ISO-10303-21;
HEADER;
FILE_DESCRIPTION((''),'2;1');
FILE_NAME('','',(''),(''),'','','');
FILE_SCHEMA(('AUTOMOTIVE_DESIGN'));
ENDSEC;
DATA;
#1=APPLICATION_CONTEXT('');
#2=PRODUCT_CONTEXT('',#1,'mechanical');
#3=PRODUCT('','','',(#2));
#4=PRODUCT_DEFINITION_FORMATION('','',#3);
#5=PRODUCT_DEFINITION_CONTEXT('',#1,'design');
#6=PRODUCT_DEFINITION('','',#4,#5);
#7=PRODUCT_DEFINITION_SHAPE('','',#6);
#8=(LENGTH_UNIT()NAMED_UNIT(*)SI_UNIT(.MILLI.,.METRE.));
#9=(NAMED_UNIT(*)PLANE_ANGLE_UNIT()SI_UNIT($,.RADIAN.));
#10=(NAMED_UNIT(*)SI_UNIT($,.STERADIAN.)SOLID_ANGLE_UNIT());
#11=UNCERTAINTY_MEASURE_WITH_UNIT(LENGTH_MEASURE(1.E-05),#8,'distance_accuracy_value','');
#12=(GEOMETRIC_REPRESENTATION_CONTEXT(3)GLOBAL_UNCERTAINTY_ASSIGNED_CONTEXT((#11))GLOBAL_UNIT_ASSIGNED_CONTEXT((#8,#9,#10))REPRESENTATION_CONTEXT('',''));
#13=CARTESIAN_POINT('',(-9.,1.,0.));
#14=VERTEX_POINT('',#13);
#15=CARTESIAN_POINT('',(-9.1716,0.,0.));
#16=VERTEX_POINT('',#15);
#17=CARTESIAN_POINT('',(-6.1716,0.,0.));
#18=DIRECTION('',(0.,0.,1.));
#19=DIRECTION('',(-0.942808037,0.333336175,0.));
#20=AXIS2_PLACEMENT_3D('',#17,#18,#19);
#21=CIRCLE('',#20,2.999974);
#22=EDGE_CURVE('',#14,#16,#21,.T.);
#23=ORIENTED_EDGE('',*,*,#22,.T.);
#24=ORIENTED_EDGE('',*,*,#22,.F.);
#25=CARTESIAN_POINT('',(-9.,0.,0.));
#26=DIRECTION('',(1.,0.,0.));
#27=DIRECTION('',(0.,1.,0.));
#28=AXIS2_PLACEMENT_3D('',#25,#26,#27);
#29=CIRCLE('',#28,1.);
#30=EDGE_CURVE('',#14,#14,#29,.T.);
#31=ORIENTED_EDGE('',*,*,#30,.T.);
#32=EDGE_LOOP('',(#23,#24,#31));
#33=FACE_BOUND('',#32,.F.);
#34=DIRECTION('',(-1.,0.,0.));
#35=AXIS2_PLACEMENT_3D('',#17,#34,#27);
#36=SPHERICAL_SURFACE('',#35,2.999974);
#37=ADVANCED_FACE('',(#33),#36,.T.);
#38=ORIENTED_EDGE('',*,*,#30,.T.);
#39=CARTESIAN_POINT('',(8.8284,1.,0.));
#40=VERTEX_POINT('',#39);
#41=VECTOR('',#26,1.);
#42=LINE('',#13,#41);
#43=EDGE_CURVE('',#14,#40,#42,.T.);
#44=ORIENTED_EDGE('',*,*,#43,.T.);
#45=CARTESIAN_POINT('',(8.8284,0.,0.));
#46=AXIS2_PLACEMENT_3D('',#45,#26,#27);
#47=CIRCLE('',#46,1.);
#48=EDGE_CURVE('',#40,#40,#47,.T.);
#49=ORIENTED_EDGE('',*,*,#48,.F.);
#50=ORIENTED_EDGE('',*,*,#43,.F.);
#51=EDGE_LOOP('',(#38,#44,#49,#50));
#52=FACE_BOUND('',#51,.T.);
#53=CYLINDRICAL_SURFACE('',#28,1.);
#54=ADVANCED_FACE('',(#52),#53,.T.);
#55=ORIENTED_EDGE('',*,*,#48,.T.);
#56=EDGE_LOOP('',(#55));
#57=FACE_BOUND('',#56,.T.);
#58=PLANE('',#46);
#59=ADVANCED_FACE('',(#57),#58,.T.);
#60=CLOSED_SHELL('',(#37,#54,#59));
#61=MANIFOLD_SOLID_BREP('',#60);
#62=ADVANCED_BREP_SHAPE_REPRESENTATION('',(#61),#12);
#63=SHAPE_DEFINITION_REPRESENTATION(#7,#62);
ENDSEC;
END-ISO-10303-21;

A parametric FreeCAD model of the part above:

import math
import FreeCAD as App
import Part
import Sketcher
Q = App.Units.Quantity

doc = App.newDocument("Part")
body = doc.addObject("PartDesign::Body", "Body")

# Sketch on XY plane
sketch1 = body.newObject("Sketcher::SketchObject", "Sketch")
sketch1.AttachmentSupport = (doc.getObject("XY_Plane"), [""])
sketch1.MapMode = "FlatFace"
sketch1.addGeometry([
    Part.LineSegment(App.Vector(8.8, 1, 0), App.Vector(-9, 1, 0)),
    Part.ArcOfCircle(Part.Circle(App.Vector(-6.2, 0, 0), App.Vector(0, 0, 1), 3), math.radians(160.53), math.radians(180)),
    Part.LineSegment(App.Vector(-9.2, 0, 0), App.Vector(8.8, 0, 0)),
    Part.LineSegment(App.Vector(8.8, 0, 0), App.Vector(8.8, 1, 0)),
], False)
sketch1.addConstraint([
    Sketcher.Constraint("Coincident", 0, 2, 1, 1),
    Sketcher.Constraint("Coincident", 1, 2, 2, 1),
    Sketcher.Constraint("Coincident", 2, 2, 3, 1),
    Sketcher.Constraint("Coincident", 3, 2, 0, 1),
    Sketcher.Constraint("Horizontal", 0),
    Sketcher.Constraint("Horizontal", 2),
    Sketcher.Constraint("Vertical", 3),
    Sketcher.Constraint("PointOnObject", 1, 3, -1),
    Sketcher.Constraint("PointOnObject", 1, 2, -1),
    Sketcher.Constraint("Radius", 1, Q("3 mm")),
    Sketcher.Constraint("DistanceX", 2, 1, 2, 2, Q("18 mm")),
    Sketcher.Constraint("DistanceY", 3, 1, 3, 2, Q("1 mm")),
    Sketcher.Constraint("DistanceX", 0, 2, -1, 1, Q("9 mm")),
])
revolution = body.newObject("PartDesign::Revolution", "Revolution")
revolution.Profile = sketch1
revolution.ReferenceAxis = (sketch1, ["H_Axis"])
revolution.Angle = 360

doc.recompute()
